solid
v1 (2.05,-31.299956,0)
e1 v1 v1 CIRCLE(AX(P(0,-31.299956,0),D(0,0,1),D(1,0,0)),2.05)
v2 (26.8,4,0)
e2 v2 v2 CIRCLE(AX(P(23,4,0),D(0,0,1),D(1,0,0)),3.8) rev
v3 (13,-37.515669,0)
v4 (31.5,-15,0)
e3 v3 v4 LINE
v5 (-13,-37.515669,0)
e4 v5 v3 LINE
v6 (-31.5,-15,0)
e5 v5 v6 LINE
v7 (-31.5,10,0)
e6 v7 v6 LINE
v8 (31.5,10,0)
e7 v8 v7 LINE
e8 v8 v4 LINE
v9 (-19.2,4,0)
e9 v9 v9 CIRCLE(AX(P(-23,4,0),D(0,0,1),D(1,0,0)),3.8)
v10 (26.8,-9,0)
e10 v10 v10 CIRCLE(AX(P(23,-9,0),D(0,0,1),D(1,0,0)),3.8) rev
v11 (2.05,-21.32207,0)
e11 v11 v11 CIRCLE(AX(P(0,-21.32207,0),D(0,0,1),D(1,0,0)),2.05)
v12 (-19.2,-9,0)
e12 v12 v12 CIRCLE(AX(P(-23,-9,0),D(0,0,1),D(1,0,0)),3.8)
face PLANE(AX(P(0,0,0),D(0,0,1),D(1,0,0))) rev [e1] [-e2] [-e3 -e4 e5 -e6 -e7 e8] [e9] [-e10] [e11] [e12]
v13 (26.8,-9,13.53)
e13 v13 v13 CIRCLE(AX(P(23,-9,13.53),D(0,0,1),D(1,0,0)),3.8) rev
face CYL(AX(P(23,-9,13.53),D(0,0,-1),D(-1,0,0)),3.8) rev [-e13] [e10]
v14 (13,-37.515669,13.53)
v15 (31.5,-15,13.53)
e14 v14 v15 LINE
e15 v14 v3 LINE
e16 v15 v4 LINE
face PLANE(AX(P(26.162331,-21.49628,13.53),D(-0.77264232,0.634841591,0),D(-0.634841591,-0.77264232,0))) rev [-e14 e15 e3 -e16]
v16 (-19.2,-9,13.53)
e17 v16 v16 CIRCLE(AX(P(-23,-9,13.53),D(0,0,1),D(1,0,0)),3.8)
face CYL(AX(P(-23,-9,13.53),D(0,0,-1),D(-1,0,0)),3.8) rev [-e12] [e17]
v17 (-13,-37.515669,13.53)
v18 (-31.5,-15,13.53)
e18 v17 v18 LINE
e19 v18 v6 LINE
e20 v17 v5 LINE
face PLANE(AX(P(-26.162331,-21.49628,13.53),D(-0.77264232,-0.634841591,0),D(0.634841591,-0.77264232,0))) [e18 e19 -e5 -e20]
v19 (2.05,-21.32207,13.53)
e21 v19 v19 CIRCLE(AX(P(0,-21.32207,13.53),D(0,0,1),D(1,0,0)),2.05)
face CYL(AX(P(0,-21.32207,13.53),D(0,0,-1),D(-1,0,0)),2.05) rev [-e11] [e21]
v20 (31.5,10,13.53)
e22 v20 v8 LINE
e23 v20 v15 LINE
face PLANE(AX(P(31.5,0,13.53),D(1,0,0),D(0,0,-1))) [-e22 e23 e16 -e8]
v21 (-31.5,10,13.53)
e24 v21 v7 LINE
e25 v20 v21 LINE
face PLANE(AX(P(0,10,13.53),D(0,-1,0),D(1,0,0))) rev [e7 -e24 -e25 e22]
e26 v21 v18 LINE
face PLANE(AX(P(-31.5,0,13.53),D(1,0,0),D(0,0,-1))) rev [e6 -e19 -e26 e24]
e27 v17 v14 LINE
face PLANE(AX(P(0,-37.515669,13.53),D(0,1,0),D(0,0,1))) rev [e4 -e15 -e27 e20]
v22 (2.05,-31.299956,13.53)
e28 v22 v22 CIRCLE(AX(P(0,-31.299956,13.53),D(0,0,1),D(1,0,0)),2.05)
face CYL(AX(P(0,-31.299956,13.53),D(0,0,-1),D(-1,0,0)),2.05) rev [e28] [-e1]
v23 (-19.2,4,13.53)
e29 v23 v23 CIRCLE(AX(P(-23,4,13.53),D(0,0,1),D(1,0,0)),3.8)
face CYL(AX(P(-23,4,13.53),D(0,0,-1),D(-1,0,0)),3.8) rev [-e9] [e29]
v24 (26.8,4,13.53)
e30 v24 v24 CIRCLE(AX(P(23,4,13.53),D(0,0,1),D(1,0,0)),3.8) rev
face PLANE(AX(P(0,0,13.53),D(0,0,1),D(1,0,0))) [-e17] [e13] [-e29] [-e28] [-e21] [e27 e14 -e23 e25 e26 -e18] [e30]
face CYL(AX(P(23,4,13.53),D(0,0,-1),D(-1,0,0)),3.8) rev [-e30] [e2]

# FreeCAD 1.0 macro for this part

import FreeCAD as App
import Part
import Sketcher
Q = App.Units.Quantity


def add_polygon(sketch, points):
    """Adds a closed chain of lines whose ends are joined by coincident constraints."""
    first, n = sketch.GeometryCount, len(points)
    for a, b in zip(points, points[1:] + points[:1]):
        sketch.addGeometry(Part.LineSegment(App.Vector(*a, 0), App.Vector(*b, 0)), False)
    for i in range(n):
        sketch.addConstraint(Sketcher.Constraint("Coincident", first + i, 2, first + (i + 1) % n, 1))

doc = App.newDocument("Part")
body = doc.addObject("PartDesign::Body", "Body")

# Sketch on XY plane
sketch1 = body.newObject("Sketcher::SketchObject", "Sketch")
sketch1.AttachmentSupport = (doc.getObject("XY_Plane"), [""])
sketch1.MapMode = "FlatFace"
add_polygon(sketch1, [(-31.5, 10), (-31.5, -15), (31.5, -15), (31.5, 10)])  # lines 0-3
sketch1.addGeometry(Part.Circle(App.Vector(-23, -9, 0), App.Vector(0, 0, 1), 3.8), False)  # 4
sketch1.addGeometry(Part.Circle(App.Vector(23, -9, 0), App.Vector(0, 0, 1), 3.8), False)  # 5
sketch1.addGeometry(Part.Circle(App.Vector(-23, 4, 0), App.Vector(0, 0, 1), 3.8), False)  # 6
sketch1.addGeometry(Part.Circle(App.Vector(23, 4, 0), App.Vector(0, 0, 1), 3.8), False)  # 7
sketch1.addConstraint([
    Sketcher.Constraint("Vertical", 0),
    Sketcher.Constraint("Horizontal", 1),
    Sketcher.Constraint("Vertical", 2),
    Sketcher.Constraint("Horizontal", 3),
    Sketcher.Constraint("Equal", 4, 5),
    Sketcher.Constraint("Equal", 5, 6),
    Sketcher.Constraint("Equal", 6, 7),
    Sketcher.Constraint("Symmetric", 4, 3, 5, 3, -2),
    Sketcher.Constraint("Symmetric", 6, 3, 7, 3, -2),
    Sketcher.Constraint("Vertical", 4, 3, 6, 3),
    Sketcher.Constraint("Diameter", 4, Q("7.6 mm")),
    Sketcher.Constraint("DistanceX", 1, 1, 1, 2, Q("63 mm")),
    Sketcher.Constraint("DistanceY", 0, 2, 0, 1, Q("25 mm")),
    Sketcher.Constraint("DistanceX", 4, 3, -1, 1, Q("23 mm")),
    Sketcher.Constraint("DistanceY", 4, 3, -1, 1, Q("9 mm")),
    Sketcher.Constraint("DistanceY", -1, 1, 6, 3, Q("4 mm")),
    Sketcher.Constraint("DistanceY", 0, 2, -1, 1, Q("15 mm")),
    Sketcher.Constraint("DistanceX", 0, 2, -1, 1, Q("31.5 mm")),
])
pad1 = body.newObject("PartDesign::Pad", "Pad")
pad1.Profile = sketch1
pad1.Length = 13.53

# Sketch on XY plane
sketch2 = body.newObject("Sketcher::SketchObject", "Sketch001")
sketch2.AttachmentSupport = (doc.getObject("XY_Plane"), [""])
sketch2.MapMode = "FlatFace"
add_polygon(sketch2, [(13, -37.515669), (31.5, -15), (-31.5, -15), (-13, -37.515669)])  # lines 0-3
sketch2.addGeometry(Part.Circle(App.Vector(0, -31.299956, 0), App.Vector(0, 0, 1), 2.05), False)  # 4
sketch2.addGeometry(Part.Circle(App.Vector(0, -21.32207, 0), App.Vector(0, 0, 1), 2.05), False)  # 5
sketch2.addConstraint([
    Sketcher.Constraint("Horizontal", 1),
    Sketcher.Constraint("Horizontal", 3),
    Sketcher.Constraint("Equal", 4, 5),
    Sketcher.Constraint("PointOnObject", 4, 3, -2),
    Sketcher.Constraint("PointOnObject", 5, 3, -2),
    Sketcher.Constraint("Equal", 0, 2),
    Sketcher.Constraint("Diameter", 4, Q("4.1 mm")),
    Sketcher.Constraint("DistanceX", 1, 2, 1, 1, Q("63 mm")),
    Sketcher.Constraint("DistanceX", 3, 1, 3, 2, Q("26 mm")),
    Sketcher.Constraint("DistanceY", 0, 2, -1, 1, Q("15 mm")),
    Sketcher.Constraint("DistanceX", 2, 2, -1, 1, Q("13 mm")),
    Sketcher.Constraint("DistanceY", 2, 2, 5, 3, Q("16.193599 mm")),
    Sketcher.Constraint("DistanceY", 5, 3, -1, 1, Q("21.32207 mm")),
    Sketcher.Constraint("DistanceY", 4, 3, -1, 1, Q("31.299956 mm")),
])
pad2 = body.newObject("PartDesign::Pad", "Pad001")
pad2.Profile = sketch2
pad2.Length = 13.53

doc.recompute()
